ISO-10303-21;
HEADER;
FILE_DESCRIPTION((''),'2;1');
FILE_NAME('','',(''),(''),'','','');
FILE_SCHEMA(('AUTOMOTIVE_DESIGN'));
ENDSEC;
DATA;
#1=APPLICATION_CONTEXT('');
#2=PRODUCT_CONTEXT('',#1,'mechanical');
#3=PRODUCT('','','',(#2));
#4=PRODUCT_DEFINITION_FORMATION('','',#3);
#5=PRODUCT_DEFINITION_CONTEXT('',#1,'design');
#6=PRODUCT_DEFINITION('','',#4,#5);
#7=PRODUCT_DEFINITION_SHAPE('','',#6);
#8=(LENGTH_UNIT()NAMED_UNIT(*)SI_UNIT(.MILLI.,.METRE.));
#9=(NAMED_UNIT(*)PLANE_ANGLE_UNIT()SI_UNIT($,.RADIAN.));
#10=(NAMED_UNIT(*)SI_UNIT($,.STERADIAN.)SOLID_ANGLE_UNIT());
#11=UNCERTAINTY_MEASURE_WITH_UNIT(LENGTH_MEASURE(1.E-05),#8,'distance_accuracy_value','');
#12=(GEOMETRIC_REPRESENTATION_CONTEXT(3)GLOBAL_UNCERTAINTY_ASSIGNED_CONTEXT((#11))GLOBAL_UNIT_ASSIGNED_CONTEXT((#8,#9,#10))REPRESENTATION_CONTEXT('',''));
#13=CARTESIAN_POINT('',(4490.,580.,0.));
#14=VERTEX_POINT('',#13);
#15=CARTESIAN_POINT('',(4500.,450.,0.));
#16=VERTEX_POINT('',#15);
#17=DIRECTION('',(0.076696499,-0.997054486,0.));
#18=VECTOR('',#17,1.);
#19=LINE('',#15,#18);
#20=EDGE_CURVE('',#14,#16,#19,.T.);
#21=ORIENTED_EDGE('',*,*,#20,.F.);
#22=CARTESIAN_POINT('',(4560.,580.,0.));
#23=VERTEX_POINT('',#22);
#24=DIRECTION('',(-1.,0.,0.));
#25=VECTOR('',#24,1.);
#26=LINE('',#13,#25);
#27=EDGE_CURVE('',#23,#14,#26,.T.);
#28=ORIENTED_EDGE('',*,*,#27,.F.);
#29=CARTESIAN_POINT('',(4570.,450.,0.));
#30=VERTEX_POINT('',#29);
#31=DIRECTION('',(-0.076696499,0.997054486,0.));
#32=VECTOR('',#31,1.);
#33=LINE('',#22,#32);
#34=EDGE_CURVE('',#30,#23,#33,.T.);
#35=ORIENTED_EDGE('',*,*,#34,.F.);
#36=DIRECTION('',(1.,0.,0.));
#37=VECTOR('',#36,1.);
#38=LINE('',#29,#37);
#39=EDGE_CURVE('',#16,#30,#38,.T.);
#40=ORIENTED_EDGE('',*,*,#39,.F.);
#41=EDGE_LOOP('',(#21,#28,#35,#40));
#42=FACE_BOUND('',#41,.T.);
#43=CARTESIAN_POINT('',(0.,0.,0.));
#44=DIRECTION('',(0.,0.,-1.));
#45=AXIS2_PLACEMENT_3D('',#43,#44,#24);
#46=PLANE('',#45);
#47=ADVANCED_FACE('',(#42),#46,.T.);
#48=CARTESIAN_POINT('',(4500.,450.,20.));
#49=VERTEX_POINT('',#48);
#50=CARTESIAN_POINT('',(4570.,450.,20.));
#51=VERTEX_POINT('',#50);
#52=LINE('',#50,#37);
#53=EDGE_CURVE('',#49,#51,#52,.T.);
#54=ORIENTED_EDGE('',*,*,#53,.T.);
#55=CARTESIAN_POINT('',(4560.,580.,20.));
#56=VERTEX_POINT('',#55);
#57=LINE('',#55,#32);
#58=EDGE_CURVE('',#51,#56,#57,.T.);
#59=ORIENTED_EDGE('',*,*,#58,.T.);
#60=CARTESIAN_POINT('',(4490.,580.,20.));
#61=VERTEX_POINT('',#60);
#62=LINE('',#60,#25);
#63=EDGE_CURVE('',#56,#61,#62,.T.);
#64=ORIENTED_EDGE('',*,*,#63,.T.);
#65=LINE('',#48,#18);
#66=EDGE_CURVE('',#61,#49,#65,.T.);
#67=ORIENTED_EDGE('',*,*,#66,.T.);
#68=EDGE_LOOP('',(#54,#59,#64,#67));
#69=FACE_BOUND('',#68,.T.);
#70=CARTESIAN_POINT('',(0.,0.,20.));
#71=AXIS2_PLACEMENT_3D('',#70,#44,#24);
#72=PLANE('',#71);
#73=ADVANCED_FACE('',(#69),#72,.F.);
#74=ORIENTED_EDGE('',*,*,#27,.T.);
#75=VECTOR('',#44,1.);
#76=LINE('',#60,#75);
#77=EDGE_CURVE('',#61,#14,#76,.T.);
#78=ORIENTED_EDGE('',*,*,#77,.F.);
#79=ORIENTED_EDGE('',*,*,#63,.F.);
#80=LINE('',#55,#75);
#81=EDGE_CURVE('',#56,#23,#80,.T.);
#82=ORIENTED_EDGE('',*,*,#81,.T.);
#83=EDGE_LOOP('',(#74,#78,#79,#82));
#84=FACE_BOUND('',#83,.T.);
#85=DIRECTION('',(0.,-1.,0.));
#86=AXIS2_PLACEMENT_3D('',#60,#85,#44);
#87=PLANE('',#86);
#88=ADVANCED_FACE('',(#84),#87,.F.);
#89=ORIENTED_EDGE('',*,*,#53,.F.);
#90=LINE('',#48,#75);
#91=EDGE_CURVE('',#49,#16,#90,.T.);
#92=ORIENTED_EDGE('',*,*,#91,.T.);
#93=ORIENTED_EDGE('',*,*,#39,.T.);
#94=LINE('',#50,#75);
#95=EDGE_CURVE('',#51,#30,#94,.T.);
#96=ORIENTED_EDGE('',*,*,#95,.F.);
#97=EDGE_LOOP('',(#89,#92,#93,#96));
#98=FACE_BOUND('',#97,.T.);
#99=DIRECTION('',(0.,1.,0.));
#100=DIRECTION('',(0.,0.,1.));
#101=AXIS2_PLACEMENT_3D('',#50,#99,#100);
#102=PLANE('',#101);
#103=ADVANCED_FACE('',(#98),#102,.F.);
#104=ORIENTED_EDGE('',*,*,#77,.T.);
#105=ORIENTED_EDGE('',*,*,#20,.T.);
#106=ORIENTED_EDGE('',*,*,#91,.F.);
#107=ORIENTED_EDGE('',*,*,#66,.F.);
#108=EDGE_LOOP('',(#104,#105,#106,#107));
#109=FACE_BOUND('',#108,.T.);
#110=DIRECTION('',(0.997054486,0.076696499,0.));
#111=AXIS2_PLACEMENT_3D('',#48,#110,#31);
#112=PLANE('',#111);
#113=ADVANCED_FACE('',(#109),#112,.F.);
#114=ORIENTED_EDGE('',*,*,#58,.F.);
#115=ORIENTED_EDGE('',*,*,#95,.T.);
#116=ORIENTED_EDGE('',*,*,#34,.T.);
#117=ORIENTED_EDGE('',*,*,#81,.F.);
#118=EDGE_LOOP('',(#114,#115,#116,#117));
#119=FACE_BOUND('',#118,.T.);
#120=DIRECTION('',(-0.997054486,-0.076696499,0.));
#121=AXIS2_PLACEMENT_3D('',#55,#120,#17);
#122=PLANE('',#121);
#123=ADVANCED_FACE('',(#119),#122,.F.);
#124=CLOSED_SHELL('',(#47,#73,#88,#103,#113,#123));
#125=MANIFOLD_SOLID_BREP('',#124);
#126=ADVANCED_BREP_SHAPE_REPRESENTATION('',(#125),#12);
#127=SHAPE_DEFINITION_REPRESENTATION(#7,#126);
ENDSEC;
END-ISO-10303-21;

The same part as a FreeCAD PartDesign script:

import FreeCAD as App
import Part
import Sketcher

V = App.Vector
Q = App.Units.Quantity

doc = App.newDocument("Part")
body = doc.addObject("PartDesign::Body", "Body")

# Sketch on XY plane
sketch1 = doc.addObject("Sketcher::SketchObject", "Sketch")
body.addObject(sketch1)
sketch1.AttachmentSupport = (doc.XY_Plane, [""])
sketch1.MapMode = "FlatFace"
sketch1.addGeometry([
    Part.LineSegment(V(4490, 580, 0), V(4500, 450, 0)),
    Part.LineSegment(V(4500, 450, 0), V(4570, 450, 0)),
    Part.LineSegment(V(4570, 450, 0), V(4560, 580, 0)),
    Part.LineSegment(V(4560, 580, 0), V(4490, 580, 0)),
], False)
sketch1.addConstraint([
    Sketcher.Constraint("Coincident", 0, 2, 1, 1),
    Sketcher.Constraint("Coincident", 1, 2, 2, 1),
    Sketcher.Constraint("Coincident", 2, 2, 3, 1),
    Sketcher.Constraint("Coincident", 3, 2, 0, 1),
    Sketcher.Constraint("Horizontal", 1),
    Sketcher.Constraint("Horizontal", 3),
    Sketcher.Constraint("Parallel", 0, 2),
    Sketcher.Constraint("DistanceX", 1, 1, 1, 2, Q("70 mm")),
    Sketcher.Constraint("DistanceX", -1, 1, 0, 2, Q("4500 mm")),
    Sketcher.Constraint("DistanceY", -1, 1, 0, 2, Q("450 mm")),
    Sketcher.Constraint("DistanceX", -1, 1, 2, 2, Q("4560 mm")),
    Sketcher.Constraint("DistanceY", -1, 1, 2, 2, Q("580 mm")),
])
pad1 = doc.addObject("PartDesign::Pad", "Pad")
body.addObject(pad1)
pad1.Profile = sketch1
pad1.Length = 20

doc.recompute()
